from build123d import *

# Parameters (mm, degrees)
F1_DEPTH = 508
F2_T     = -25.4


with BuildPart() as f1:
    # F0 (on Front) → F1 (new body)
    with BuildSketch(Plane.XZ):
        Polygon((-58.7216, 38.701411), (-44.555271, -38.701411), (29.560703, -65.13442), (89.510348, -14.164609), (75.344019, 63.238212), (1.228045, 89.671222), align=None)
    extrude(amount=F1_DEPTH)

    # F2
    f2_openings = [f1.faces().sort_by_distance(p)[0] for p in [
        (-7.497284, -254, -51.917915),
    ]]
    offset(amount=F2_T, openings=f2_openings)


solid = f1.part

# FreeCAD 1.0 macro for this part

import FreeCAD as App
import Part
import Sketcher

V = App.Vector
Q = App.Units.Quantity


def faces_at(feature, points):
    """Names of the faces that lie closest to the given points."""
    faces = feature.Shape.Faces
    near = lambda p: min(range(len(faces)), key=lambda i: faces[i].distToShape(Part.Vertex(*p))[0])
    return sorted({f"Face{near(p) + 1}" for p in points})

doc = App.newDocument("Part")
params = doc.addObject("Spreadsheet::Sheet", "Params")
for row, (alias, value) in enumerate([
    ("pad1_length", "20 in"),
    ("thickness_wall", "1 in"),
], start=1):
    params.set(f"A{row}", alias)
    params.set(f"B{row}", "=" + value)
    params.setAlias(f"B{row}", alias)

body = doc.addObject("PartDesign::Body", "Body")

sketch1 = body.newObject("Sketcher::SketchObject", "Sketch")
sketch1.AttachmentSupport = (doc.getObject("XZ_Plane"), [""])
sketch1.MapMode = "FlatFace"
sketch1.addGeometry(Part.LineSegment(V(-59, 39, 0), V(-45, -39, 0)), False)
sketch1.addGeometry(Part.LineSegment(V(-45, -39, 0), V(30, -65, 0)), False)
sketch1.addGeometry(Part.LineSegment(V(30, -65, 0), V(90, -14, 0)), False)
sketch1.addGeometry(Part.LineSegment(V(90, -14, 0), V(75, 63, 0)), False)
sketch1.addGeometry(Part.LineSegment(V(75, 63, 0), V(1, 90, 0)), False)
sketch1.addGeometry(Part.LineSegment(V(1, 90, 0), V(-59, 39, 0)), False)
sketch1.addConstraint(Sketcher.Constraint("Coincident", 0, 2, 1, 1))
sketch1.addConstraint(Sketcher.Constraint("Coincident", 1, 2, 2, 1))
sketch1.addConstraint(Sketcher.Constraint("Coincident", 2, 2, 3, 1))
sketch1.addConstraint(Sketcher.Constraint("Coincident", 3, 2, 4, 1))
sketch1.addConstraint(Sketcher.Constraint("Coincident", 4, 2, 5, 1))
sketch1.addConstraint(Sketcher.Constraint("Coincident", 5, 2, 0, 1))
sketch1.addConstraint(Sketcher.Constraint("Parallel", 0, 3))
sketch1.addConstraint(Sketcher.Constraint("Parallel", 1, 4))
sketch1.addConstraint(Sketcher.Constraint("Parallel", 2, 5))
sketch1.addConstraint(Sketcher.Constraint("Equal", 0, 1))
sketch1.addConstraint(Sketcher.Constraint("Equal", 1, 2))
sketch1.addConstraint(Sketcher.Constraint("Equal", 2, 3))
sketch1.addConstraint(Sketcher.Constraint("DistanceX", -1, 1, 3, 2, Q("2.9663 in")))
sketch1.addConstraint(Sketcher.Constraint("DistanceX", 5, 2, -1, 1, Q("58.7216 mm")))
sketch1.addConstraint(Sketcher.Constraint("DistanceY", 5, 2, 3, 2, Q("24.536801 mm")))
sketch1.addConstraint(Sketcher.Constraint("Distance", 0, Q("78.688511 mm")))
sketch1.addConstraint(Sketcher.Constraint("DistanceX", 0, 2, -1, 1, Q("44.555271 mm")))
sketch1.addConstraint(Sketcher.Constraint("DistanceY", 0, 2, -1, 1, Q("38.701411 mm")))
pad1 = body.newObject("PartDesign::Pad", "Pad")
pad1.Profile = sketch1
pad1.setExpression("Length", "Params.pad1_length")
doc.recompute()

thickness = body.newObject("PartDesign::Thickness", "Thickness")
thickness.Base = (pad1, faces_at(pad1, [(-7.497, -254, -51.918)]))
thickness.setExpression("Value", "Params.thickness_wall")
thickness.Reversed = True
thickness.Join = "Arc"

doc.recompute()
